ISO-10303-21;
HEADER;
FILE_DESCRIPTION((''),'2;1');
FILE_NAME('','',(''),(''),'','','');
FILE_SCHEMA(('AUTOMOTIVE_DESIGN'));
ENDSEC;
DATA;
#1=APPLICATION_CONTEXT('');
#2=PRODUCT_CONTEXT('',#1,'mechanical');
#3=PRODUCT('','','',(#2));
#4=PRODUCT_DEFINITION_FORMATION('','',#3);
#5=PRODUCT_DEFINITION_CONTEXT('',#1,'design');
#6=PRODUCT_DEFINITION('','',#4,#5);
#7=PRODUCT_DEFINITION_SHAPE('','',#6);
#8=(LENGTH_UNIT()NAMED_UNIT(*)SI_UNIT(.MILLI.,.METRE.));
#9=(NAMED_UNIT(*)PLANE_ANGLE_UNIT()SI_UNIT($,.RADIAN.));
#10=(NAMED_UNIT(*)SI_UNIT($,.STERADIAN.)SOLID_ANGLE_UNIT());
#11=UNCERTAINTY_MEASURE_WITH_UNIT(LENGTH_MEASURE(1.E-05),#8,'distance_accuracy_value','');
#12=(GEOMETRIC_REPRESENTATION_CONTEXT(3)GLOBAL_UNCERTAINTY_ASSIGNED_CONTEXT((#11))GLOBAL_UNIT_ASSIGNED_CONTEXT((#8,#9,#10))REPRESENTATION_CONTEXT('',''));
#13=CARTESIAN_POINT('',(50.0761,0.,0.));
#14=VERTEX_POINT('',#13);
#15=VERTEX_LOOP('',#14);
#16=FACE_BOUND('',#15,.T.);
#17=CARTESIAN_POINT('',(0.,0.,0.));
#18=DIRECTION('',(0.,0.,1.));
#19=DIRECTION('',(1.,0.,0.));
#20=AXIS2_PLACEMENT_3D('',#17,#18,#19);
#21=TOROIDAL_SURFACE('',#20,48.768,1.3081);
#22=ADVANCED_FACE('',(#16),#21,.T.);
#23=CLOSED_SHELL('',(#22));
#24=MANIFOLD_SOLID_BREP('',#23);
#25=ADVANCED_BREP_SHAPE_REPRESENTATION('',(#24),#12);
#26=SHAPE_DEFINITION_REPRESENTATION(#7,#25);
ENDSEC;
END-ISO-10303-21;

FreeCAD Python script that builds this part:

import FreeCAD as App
import Part
import Sketcher
Q = App.Units.Quantity

doc = App.newDocument("Part")
body = doc.addObject("PartDesign::Body", "Body")

# Sketch on YZ plane
sketch1 = body.newObject("Sketcher::SketchObject", "Sketch")
sketch1.AttachmentSupport = (doc.getObject("YZ_Plane"), [""])
sketch1.MapMode = "FlatFace"
sketch1.addGeometry(Part.Circle(App.Vector(-48.768, 0, 0), App.Vector(0, 0, 1), 1.3081), False)
sketch1.addConstraint(Sketcher.Constraint("PointOnObject", 0, 3, -1))
sketch1.addConstraint(Sketcher.Constraint("Diameter", 0, Q("0.103 in")))
sketch1.addConstraint(Sketcher.Constraint("DistanceX", 0, 3, -1, 1, Q("1.92 in")))
revolution = body.newObject("PartDesign::Revolution", "Revolution")
revolution.Profile = sketch1
revolution.ReferenceAxis = (sketch1, ["V_Axis"])
revolution.Angle = 360

doc.recompute()
